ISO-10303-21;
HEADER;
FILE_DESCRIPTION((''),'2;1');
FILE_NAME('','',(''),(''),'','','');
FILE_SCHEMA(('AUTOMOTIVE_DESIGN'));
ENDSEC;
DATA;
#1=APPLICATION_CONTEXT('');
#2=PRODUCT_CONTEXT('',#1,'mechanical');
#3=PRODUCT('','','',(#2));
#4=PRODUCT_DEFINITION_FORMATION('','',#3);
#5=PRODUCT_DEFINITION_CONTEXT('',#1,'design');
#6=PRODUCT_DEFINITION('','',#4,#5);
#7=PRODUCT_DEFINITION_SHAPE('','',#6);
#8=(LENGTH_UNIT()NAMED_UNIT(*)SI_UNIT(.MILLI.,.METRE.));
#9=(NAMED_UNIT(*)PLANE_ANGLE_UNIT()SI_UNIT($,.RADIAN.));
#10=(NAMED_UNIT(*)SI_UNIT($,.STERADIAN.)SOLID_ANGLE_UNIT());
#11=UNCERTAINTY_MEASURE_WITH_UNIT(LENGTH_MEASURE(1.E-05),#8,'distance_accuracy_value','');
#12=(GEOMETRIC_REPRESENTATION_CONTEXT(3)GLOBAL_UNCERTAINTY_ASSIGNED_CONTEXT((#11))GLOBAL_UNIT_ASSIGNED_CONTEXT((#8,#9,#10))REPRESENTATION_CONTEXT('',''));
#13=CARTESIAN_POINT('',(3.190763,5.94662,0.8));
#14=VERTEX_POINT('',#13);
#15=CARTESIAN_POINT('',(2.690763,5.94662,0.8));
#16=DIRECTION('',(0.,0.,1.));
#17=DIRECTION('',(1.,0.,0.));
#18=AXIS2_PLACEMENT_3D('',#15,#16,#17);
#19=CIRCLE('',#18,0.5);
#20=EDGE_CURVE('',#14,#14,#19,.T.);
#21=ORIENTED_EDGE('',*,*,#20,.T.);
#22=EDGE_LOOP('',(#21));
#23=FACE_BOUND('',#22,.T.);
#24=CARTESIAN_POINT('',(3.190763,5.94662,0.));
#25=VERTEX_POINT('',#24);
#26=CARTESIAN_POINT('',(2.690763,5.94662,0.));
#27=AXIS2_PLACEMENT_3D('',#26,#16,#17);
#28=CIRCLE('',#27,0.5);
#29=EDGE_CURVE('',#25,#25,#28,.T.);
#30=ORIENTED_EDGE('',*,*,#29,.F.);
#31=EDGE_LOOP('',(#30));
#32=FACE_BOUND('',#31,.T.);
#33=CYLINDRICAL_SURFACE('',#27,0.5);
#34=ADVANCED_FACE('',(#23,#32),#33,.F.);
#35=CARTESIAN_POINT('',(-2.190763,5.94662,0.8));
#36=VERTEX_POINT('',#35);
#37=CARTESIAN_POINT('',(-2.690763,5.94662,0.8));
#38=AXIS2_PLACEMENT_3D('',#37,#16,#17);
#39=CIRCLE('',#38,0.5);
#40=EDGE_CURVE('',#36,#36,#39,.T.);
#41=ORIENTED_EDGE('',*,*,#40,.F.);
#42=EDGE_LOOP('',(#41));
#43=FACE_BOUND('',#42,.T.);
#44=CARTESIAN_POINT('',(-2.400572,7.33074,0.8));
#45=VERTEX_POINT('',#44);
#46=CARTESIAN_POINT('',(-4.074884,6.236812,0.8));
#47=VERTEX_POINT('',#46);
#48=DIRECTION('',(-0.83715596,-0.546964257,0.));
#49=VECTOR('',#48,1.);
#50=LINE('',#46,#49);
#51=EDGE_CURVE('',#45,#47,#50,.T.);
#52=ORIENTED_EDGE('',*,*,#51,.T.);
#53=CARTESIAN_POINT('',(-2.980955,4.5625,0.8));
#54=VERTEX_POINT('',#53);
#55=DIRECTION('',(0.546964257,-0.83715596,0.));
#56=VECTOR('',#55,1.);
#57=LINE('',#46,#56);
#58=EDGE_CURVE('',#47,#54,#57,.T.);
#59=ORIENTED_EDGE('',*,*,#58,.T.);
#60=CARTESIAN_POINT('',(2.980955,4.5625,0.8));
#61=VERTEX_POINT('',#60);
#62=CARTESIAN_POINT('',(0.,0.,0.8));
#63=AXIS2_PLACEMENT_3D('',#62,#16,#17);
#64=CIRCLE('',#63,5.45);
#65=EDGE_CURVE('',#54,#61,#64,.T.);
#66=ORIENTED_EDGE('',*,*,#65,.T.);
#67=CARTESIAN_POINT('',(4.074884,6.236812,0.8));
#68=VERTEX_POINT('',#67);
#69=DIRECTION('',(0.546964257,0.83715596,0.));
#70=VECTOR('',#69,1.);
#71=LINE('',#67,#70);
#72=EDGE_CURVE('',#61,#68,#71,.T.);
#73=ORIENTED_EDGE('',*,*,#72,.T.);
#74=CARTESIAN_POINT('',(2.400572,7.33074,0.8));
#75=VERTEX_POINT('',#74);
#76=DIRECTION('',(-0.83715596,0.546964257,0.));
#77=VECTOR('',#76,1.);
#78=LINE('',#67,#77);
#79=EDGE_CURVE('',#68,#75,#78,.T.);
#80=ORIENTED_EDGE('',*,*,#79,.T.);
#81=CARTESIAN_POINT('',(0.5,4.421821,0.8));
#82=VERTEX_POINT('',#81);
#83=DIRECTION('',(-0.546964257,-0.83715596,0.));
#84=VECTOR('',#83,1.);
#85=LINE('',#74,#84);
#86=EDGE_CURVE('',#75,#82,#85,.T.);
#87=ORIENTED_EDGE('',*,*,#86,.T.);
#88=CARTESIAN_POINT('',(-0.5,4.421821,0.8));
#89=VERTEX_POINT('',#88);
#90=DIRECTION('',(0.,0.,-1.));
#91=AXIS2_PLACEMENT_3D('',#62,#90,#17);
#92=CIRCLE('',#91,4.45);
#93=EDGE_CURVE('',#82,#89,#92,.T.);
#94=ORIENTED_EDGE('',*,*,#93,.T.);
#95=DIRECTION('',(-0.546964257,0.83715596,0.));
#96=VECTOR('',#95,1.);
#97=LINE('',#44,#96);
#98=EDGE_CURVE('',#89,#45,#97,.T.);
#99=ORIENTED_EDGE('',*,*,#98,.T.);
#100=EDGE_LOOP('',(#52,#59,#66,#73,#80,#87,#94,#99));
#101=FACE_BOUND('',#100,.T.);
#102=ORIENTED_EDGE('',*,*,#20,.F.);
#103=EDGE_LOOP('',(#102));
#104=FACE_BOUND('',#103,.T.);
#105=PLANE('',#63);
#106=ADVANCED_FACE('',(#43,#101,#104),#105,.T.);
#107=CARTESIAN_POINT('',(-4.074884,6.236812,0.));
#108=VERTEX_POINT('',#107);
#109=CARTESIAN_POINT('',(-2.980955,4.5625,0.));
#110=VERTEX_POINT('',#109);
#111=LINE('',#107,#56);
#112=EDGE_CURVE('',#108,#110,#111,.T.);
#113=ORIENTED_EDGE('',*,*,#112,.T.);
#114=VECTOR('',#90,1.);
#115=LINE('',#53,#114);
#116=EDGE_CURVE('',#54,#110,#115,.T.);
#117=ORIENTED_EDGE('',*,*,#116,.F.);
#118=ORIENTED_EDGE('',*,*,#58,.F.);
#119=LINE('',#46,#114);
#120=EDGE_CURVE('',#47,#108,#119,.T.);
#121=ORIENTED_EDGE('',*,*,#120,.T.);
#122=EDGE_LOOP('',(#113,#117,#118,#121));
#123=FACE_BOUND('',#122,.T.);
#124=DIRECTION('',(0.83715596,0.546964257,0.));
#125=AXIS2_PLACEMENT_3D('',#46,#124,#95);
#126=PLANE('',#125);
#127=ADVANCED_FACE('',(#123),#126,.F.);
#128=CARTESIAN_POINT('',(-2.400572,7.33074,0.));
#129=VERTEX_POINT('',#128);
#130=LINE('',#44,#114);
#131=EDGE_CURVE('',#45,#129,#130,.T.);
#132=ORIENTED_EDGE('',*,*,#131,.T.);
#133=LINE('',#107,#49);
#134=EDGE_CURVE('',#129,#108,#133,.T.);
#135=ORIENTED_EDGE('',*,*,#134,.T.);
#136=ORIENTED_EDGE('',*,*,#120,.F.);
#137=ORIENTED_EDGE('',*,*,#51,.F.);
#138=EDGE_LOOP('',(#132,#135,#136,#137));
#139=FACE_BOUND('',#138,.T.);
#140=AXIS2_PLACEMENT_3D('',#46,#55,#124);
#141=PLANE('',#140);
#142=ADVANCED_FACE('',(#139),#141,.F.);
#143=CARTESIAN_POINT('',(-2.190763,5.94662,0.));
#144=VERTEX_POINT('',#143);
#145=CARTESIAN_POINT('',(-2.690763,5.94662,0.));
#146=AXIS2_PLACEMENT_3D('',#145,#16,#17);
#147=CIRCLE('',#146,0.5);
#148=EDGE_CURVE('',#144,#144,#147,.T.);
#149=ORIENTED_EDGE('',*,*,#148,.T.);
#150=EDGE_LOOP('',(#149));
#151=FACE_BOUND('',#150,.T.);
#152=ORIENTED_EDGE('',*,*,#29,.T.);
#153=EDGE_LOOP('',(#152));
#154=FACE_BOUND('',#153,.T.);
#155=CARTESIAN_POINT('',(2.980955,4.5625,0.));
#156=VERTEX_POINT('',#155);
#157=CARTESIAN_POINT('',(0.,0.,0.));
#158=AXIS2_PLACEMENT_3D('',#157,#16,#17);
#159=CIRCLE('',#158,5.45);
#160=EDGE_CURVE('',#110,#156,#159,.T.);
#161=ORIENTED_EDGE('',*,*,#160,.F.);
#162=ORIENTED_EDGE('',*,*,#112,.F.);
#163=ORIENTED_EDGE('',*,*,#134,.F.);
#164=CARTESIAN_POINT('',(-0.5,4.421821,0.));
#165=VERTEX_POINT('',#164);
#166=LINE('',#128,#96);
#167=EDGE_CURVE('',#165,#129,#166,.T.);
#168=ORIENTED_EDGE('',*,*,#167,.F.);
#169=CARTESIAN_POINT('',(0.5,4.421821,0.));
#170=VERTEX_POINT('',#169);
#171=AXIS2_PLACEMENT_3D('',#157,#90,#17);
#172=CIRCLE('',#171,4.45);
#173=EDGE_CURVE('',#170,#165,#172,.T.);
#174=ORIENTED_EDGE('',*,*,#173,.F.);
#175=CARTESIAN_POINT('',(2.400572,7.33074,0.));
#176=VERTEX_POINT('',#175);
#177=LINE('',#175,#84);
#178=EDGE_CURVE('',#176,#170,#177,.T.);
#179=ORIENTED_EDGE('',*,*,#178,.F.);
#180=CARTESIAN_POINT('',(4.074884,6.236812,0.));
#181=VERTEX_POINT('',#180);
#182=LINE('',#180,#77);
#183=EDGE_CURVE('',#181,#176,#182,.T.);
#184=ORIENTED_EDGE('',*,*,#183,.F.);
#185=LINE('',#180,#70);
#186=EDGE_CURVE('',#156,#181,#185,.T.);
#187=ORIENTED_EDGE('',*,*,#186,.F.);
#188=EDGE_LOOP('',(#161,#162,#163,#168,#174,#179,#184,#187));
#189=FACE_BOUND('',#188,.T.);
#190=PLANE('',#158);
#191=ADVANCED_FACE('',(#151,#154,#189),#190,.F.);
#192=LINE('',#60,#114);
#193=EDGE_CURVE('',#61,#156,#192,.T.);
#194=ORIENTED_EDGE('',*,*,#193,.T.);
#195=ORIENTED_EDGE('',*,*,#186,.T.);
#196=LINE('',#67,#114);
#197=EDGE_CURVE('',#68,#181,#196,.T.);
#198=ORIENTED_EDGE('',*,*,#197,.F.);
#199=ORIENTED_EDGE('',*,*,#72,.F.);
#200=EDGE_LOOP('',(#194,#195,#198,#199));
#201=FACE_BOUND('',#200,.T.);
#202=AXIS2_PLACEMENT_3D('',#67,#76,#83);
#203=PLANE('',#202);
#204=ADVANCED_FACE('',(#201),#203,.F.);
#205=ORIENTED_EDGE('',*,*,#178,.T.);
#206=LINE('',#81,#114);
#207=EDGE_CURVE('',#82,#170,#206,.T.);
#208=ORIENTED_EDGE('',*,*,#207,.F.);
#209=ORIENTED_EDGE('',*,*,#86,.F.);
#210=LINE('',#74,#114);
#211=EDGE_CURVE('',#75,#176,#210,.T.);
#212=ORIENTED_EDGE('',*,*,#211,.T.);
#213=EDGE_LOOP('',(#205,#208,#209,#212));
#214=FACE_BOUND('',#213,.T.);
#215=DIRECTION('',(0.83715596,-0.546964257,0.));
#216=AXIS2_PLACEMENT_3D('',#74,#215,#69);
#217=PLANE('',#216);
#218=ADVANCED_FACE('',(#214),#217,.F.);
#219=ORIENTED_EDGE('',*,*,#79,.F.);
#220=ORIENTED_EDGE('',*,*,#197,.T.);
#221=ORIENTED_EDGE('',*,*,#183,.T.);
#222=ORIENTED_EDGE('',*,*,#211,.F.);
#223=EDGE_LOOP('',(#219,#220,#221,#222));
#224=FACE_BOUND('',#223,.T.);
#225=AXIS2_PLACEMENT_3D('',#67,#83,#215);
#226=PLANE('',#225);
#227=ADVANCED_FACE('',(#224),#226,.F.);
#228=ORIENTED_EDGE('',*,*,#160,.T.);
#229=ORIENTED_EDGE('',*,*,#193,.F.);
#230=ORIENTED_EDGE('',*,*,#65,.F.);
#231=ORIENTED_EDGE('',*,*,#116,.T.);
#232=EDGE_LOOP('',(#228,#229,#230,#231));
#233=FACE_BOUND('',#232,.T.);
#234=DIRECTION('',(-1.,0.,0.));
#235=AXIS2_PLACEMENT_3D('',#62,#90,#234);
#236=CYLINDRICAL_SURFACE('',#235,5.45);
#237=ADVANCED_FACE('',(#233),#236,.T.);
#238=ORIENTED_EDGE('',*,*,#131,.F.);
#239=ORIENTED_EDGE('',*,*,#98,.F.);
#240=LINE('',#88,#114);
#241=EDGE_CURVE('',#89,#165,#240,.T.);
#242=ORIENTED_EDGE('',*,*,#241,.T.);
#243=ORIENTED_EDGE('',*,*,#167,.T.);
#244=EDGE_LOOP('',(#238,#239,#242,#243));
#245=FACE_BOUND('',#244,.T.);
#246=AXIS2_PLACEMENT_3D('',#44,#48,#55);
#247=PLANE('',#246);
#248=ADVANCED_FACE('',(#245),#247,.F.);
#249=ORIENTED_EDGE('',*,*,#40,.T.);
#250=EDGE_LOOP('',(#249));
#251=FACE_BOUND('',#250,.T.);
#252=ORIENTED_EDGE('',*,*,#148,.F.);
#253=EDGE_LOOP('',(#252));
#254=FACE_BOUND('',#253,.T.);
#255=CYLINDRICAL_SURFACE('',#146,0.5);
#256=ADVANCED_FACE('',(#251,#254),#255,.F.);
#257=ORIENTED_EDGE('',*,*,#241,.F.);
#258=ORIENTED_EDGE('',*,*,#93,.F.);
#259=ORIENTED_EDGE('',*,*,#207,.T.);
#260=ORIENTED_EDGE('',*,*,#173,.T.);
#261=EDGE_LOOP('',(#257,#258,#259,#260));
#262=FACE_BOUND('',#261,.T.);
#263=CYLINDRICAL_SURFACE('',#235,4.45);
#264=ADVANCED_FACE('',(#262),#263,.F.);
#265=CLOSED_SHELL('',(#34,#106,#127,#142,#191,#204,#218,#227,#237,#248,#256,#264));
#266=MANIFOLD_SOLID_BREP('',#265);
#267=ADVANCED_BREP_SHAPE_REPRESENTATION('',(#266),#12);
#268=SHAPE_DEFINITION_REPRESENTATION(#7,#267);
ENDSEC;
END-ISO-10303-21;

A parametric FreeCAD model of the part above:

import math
import FreeCAD as App
import Part
import Sketcher
from FreeCAD import Vector
Q = App.Units.Quantity

doc = App.newDocument("Part")
body = doc.addObject("PartDesign::Body", "Body")

# Sketch on XY plane
sketch1 = body.newObject("Sketcher::SketchObject", "Sketch")
sketch1.AttachmentSupport = (doc.getObject("XY_Plane"), [""])
sketch1.MapMode = "FlatFace"
sketch1.addGeometry([
    Part.LineSegment(Vector(-4.1, 6.2, 0), Vector(-3, 4.6, 0)),  # 0
    Part.ArcOfCircle(Part.Circle(Vector(0, 0, 0), Vector(0, 0, 1), 5.5), math.radians(123), math.radians(417)),  # 1
    Part.LineSegment(Vector(3, 4.6, 0), Vector(4.1, 6.2, 0)),  # 2
    Part.LineSegment(Vector(4.1, 6.2, 0), Vector(2.4, 7.3, 0)),  # 3
    Part.LineSegment(Vector(2.4, 7.3, 0), Vector(0.5, 4.4, 0)),  # 4
    Part.ArcOfCircle(Part.Circle(Vector(0, 0, 0), Vector(0, 0, 1), 4.5), math.radians(96), math.radians(444)),  # 5
    Part.LineSegment(Vector(-0.5, 4.4, 0), Vector(-2.4, 7.3, 0)),  # 6
    Part.LineSegment(Vector(-2.4, 7.3, 0), Vector(-4.1, 6.2, 0)),  # 7
], False)
sketch1.addConstraint([
    Sketcher.Constraint("Coincident", 0, 2, 1, 1),
    Sketcher.Constraint("Coincident", 1, 2, 2, 1),
    Sketcher.Constraint("Coincident", 2, 2, 3, 1),
    Sketcher.Constraint("Coincident", 3, 2, 4, 1),
    Sketcher.Constraint("Coincident", 4, 2, 5, 2),
    Sketcher.Constraint("Coincident", 5, 1, 6, 1),
    Sketcher.Constraint("Coincident", 6, 2, 7, 1),
    Sketcher.Constraint("Coincident", 7, 2, 0, 1),
    Sketcher.Constraint("Coincident", 1, 3, -1, 1),
    Sketcher.Constraint("Coincident", 5, 3, -1, 1),
    Sketcher.Constraint("Symmetric", 3, 2, 6, 2, -2),
    Sketcher.Constraint("Symmetric", 2, 2, 7, 2, -2),
    Sketcher.Constraint("Perpendicular", 2, 3),
    Sketcher.Constraint("Perpendicular", 3, 4),
    Sketcher.Constraint("Parallel", 0, 6),
    Sketcher.Constraint("Perpendicular", 6, 7),
    Sketcher.Constraint("Equal", 2, 3),
    Sketcher.Constraint("Radius", 1, Q("5.45 mm")),
    Sketcher.Constraint("Radius", 5, Q("4.45 mm")),
    Sketcher.Constraint("Distance", 0, Q("2 mm")),
    Sketcher.Constraint("DistanceX", 5, 1, 4, 2, Q("1 mm")),
    Sketcher.Constraint("DistanceY", -1, 1, 0, 2, Q("4.5625 mm")),
])
pad1 = body.newObject("PartDesign::Pad", "Pad")
pad1.Profile = sketch1
pad1.Length = 0.8

# Sketch on XY plane
sketch2 = body.newObject("Sketcher::SketchObject", "Sketch001")
sketch2.AttachmentSupport = (doc.getObject("XY_Plane"), [""])
sketch2.MapMode = "FlatFace"
sketch2.AttachmentOffset = App.Placement(Vector(0, 0, 0.8), App.Rotation())
sketch2.addGeometry([
    Part.Circle(Vector(-2.7, 5.9, 0), Vector(0, 0, 1), 0.5),
    Part.Circle(Vector(2.7, 5.9, 0), Vector(0, 0, 1), 0.5),
], False)
sketch2.addConstraint([
    Sketcher.Constraint("Equal", 0, 1),
    Sketcher.Constraint("Symmetric", 0, 3, 1, 3, -2),
    Sketcher.Constraint("Diameter", 0, Q("1 mm")),
    Sketcher.Constraint("DistanceY", -1, 1, 0, 3, Q("5.94662 mm")),
    Sketcher.Constraint("DistanceX", 0, 3, -1, 1, Q("2.690764 mm")),
])
pocket1 = body.newObject("PartDesign::Pocket", "Pocket")
pocket1.Profile = sketch2
pocket1.Type = "ThroughAll"

doc.recompute()
